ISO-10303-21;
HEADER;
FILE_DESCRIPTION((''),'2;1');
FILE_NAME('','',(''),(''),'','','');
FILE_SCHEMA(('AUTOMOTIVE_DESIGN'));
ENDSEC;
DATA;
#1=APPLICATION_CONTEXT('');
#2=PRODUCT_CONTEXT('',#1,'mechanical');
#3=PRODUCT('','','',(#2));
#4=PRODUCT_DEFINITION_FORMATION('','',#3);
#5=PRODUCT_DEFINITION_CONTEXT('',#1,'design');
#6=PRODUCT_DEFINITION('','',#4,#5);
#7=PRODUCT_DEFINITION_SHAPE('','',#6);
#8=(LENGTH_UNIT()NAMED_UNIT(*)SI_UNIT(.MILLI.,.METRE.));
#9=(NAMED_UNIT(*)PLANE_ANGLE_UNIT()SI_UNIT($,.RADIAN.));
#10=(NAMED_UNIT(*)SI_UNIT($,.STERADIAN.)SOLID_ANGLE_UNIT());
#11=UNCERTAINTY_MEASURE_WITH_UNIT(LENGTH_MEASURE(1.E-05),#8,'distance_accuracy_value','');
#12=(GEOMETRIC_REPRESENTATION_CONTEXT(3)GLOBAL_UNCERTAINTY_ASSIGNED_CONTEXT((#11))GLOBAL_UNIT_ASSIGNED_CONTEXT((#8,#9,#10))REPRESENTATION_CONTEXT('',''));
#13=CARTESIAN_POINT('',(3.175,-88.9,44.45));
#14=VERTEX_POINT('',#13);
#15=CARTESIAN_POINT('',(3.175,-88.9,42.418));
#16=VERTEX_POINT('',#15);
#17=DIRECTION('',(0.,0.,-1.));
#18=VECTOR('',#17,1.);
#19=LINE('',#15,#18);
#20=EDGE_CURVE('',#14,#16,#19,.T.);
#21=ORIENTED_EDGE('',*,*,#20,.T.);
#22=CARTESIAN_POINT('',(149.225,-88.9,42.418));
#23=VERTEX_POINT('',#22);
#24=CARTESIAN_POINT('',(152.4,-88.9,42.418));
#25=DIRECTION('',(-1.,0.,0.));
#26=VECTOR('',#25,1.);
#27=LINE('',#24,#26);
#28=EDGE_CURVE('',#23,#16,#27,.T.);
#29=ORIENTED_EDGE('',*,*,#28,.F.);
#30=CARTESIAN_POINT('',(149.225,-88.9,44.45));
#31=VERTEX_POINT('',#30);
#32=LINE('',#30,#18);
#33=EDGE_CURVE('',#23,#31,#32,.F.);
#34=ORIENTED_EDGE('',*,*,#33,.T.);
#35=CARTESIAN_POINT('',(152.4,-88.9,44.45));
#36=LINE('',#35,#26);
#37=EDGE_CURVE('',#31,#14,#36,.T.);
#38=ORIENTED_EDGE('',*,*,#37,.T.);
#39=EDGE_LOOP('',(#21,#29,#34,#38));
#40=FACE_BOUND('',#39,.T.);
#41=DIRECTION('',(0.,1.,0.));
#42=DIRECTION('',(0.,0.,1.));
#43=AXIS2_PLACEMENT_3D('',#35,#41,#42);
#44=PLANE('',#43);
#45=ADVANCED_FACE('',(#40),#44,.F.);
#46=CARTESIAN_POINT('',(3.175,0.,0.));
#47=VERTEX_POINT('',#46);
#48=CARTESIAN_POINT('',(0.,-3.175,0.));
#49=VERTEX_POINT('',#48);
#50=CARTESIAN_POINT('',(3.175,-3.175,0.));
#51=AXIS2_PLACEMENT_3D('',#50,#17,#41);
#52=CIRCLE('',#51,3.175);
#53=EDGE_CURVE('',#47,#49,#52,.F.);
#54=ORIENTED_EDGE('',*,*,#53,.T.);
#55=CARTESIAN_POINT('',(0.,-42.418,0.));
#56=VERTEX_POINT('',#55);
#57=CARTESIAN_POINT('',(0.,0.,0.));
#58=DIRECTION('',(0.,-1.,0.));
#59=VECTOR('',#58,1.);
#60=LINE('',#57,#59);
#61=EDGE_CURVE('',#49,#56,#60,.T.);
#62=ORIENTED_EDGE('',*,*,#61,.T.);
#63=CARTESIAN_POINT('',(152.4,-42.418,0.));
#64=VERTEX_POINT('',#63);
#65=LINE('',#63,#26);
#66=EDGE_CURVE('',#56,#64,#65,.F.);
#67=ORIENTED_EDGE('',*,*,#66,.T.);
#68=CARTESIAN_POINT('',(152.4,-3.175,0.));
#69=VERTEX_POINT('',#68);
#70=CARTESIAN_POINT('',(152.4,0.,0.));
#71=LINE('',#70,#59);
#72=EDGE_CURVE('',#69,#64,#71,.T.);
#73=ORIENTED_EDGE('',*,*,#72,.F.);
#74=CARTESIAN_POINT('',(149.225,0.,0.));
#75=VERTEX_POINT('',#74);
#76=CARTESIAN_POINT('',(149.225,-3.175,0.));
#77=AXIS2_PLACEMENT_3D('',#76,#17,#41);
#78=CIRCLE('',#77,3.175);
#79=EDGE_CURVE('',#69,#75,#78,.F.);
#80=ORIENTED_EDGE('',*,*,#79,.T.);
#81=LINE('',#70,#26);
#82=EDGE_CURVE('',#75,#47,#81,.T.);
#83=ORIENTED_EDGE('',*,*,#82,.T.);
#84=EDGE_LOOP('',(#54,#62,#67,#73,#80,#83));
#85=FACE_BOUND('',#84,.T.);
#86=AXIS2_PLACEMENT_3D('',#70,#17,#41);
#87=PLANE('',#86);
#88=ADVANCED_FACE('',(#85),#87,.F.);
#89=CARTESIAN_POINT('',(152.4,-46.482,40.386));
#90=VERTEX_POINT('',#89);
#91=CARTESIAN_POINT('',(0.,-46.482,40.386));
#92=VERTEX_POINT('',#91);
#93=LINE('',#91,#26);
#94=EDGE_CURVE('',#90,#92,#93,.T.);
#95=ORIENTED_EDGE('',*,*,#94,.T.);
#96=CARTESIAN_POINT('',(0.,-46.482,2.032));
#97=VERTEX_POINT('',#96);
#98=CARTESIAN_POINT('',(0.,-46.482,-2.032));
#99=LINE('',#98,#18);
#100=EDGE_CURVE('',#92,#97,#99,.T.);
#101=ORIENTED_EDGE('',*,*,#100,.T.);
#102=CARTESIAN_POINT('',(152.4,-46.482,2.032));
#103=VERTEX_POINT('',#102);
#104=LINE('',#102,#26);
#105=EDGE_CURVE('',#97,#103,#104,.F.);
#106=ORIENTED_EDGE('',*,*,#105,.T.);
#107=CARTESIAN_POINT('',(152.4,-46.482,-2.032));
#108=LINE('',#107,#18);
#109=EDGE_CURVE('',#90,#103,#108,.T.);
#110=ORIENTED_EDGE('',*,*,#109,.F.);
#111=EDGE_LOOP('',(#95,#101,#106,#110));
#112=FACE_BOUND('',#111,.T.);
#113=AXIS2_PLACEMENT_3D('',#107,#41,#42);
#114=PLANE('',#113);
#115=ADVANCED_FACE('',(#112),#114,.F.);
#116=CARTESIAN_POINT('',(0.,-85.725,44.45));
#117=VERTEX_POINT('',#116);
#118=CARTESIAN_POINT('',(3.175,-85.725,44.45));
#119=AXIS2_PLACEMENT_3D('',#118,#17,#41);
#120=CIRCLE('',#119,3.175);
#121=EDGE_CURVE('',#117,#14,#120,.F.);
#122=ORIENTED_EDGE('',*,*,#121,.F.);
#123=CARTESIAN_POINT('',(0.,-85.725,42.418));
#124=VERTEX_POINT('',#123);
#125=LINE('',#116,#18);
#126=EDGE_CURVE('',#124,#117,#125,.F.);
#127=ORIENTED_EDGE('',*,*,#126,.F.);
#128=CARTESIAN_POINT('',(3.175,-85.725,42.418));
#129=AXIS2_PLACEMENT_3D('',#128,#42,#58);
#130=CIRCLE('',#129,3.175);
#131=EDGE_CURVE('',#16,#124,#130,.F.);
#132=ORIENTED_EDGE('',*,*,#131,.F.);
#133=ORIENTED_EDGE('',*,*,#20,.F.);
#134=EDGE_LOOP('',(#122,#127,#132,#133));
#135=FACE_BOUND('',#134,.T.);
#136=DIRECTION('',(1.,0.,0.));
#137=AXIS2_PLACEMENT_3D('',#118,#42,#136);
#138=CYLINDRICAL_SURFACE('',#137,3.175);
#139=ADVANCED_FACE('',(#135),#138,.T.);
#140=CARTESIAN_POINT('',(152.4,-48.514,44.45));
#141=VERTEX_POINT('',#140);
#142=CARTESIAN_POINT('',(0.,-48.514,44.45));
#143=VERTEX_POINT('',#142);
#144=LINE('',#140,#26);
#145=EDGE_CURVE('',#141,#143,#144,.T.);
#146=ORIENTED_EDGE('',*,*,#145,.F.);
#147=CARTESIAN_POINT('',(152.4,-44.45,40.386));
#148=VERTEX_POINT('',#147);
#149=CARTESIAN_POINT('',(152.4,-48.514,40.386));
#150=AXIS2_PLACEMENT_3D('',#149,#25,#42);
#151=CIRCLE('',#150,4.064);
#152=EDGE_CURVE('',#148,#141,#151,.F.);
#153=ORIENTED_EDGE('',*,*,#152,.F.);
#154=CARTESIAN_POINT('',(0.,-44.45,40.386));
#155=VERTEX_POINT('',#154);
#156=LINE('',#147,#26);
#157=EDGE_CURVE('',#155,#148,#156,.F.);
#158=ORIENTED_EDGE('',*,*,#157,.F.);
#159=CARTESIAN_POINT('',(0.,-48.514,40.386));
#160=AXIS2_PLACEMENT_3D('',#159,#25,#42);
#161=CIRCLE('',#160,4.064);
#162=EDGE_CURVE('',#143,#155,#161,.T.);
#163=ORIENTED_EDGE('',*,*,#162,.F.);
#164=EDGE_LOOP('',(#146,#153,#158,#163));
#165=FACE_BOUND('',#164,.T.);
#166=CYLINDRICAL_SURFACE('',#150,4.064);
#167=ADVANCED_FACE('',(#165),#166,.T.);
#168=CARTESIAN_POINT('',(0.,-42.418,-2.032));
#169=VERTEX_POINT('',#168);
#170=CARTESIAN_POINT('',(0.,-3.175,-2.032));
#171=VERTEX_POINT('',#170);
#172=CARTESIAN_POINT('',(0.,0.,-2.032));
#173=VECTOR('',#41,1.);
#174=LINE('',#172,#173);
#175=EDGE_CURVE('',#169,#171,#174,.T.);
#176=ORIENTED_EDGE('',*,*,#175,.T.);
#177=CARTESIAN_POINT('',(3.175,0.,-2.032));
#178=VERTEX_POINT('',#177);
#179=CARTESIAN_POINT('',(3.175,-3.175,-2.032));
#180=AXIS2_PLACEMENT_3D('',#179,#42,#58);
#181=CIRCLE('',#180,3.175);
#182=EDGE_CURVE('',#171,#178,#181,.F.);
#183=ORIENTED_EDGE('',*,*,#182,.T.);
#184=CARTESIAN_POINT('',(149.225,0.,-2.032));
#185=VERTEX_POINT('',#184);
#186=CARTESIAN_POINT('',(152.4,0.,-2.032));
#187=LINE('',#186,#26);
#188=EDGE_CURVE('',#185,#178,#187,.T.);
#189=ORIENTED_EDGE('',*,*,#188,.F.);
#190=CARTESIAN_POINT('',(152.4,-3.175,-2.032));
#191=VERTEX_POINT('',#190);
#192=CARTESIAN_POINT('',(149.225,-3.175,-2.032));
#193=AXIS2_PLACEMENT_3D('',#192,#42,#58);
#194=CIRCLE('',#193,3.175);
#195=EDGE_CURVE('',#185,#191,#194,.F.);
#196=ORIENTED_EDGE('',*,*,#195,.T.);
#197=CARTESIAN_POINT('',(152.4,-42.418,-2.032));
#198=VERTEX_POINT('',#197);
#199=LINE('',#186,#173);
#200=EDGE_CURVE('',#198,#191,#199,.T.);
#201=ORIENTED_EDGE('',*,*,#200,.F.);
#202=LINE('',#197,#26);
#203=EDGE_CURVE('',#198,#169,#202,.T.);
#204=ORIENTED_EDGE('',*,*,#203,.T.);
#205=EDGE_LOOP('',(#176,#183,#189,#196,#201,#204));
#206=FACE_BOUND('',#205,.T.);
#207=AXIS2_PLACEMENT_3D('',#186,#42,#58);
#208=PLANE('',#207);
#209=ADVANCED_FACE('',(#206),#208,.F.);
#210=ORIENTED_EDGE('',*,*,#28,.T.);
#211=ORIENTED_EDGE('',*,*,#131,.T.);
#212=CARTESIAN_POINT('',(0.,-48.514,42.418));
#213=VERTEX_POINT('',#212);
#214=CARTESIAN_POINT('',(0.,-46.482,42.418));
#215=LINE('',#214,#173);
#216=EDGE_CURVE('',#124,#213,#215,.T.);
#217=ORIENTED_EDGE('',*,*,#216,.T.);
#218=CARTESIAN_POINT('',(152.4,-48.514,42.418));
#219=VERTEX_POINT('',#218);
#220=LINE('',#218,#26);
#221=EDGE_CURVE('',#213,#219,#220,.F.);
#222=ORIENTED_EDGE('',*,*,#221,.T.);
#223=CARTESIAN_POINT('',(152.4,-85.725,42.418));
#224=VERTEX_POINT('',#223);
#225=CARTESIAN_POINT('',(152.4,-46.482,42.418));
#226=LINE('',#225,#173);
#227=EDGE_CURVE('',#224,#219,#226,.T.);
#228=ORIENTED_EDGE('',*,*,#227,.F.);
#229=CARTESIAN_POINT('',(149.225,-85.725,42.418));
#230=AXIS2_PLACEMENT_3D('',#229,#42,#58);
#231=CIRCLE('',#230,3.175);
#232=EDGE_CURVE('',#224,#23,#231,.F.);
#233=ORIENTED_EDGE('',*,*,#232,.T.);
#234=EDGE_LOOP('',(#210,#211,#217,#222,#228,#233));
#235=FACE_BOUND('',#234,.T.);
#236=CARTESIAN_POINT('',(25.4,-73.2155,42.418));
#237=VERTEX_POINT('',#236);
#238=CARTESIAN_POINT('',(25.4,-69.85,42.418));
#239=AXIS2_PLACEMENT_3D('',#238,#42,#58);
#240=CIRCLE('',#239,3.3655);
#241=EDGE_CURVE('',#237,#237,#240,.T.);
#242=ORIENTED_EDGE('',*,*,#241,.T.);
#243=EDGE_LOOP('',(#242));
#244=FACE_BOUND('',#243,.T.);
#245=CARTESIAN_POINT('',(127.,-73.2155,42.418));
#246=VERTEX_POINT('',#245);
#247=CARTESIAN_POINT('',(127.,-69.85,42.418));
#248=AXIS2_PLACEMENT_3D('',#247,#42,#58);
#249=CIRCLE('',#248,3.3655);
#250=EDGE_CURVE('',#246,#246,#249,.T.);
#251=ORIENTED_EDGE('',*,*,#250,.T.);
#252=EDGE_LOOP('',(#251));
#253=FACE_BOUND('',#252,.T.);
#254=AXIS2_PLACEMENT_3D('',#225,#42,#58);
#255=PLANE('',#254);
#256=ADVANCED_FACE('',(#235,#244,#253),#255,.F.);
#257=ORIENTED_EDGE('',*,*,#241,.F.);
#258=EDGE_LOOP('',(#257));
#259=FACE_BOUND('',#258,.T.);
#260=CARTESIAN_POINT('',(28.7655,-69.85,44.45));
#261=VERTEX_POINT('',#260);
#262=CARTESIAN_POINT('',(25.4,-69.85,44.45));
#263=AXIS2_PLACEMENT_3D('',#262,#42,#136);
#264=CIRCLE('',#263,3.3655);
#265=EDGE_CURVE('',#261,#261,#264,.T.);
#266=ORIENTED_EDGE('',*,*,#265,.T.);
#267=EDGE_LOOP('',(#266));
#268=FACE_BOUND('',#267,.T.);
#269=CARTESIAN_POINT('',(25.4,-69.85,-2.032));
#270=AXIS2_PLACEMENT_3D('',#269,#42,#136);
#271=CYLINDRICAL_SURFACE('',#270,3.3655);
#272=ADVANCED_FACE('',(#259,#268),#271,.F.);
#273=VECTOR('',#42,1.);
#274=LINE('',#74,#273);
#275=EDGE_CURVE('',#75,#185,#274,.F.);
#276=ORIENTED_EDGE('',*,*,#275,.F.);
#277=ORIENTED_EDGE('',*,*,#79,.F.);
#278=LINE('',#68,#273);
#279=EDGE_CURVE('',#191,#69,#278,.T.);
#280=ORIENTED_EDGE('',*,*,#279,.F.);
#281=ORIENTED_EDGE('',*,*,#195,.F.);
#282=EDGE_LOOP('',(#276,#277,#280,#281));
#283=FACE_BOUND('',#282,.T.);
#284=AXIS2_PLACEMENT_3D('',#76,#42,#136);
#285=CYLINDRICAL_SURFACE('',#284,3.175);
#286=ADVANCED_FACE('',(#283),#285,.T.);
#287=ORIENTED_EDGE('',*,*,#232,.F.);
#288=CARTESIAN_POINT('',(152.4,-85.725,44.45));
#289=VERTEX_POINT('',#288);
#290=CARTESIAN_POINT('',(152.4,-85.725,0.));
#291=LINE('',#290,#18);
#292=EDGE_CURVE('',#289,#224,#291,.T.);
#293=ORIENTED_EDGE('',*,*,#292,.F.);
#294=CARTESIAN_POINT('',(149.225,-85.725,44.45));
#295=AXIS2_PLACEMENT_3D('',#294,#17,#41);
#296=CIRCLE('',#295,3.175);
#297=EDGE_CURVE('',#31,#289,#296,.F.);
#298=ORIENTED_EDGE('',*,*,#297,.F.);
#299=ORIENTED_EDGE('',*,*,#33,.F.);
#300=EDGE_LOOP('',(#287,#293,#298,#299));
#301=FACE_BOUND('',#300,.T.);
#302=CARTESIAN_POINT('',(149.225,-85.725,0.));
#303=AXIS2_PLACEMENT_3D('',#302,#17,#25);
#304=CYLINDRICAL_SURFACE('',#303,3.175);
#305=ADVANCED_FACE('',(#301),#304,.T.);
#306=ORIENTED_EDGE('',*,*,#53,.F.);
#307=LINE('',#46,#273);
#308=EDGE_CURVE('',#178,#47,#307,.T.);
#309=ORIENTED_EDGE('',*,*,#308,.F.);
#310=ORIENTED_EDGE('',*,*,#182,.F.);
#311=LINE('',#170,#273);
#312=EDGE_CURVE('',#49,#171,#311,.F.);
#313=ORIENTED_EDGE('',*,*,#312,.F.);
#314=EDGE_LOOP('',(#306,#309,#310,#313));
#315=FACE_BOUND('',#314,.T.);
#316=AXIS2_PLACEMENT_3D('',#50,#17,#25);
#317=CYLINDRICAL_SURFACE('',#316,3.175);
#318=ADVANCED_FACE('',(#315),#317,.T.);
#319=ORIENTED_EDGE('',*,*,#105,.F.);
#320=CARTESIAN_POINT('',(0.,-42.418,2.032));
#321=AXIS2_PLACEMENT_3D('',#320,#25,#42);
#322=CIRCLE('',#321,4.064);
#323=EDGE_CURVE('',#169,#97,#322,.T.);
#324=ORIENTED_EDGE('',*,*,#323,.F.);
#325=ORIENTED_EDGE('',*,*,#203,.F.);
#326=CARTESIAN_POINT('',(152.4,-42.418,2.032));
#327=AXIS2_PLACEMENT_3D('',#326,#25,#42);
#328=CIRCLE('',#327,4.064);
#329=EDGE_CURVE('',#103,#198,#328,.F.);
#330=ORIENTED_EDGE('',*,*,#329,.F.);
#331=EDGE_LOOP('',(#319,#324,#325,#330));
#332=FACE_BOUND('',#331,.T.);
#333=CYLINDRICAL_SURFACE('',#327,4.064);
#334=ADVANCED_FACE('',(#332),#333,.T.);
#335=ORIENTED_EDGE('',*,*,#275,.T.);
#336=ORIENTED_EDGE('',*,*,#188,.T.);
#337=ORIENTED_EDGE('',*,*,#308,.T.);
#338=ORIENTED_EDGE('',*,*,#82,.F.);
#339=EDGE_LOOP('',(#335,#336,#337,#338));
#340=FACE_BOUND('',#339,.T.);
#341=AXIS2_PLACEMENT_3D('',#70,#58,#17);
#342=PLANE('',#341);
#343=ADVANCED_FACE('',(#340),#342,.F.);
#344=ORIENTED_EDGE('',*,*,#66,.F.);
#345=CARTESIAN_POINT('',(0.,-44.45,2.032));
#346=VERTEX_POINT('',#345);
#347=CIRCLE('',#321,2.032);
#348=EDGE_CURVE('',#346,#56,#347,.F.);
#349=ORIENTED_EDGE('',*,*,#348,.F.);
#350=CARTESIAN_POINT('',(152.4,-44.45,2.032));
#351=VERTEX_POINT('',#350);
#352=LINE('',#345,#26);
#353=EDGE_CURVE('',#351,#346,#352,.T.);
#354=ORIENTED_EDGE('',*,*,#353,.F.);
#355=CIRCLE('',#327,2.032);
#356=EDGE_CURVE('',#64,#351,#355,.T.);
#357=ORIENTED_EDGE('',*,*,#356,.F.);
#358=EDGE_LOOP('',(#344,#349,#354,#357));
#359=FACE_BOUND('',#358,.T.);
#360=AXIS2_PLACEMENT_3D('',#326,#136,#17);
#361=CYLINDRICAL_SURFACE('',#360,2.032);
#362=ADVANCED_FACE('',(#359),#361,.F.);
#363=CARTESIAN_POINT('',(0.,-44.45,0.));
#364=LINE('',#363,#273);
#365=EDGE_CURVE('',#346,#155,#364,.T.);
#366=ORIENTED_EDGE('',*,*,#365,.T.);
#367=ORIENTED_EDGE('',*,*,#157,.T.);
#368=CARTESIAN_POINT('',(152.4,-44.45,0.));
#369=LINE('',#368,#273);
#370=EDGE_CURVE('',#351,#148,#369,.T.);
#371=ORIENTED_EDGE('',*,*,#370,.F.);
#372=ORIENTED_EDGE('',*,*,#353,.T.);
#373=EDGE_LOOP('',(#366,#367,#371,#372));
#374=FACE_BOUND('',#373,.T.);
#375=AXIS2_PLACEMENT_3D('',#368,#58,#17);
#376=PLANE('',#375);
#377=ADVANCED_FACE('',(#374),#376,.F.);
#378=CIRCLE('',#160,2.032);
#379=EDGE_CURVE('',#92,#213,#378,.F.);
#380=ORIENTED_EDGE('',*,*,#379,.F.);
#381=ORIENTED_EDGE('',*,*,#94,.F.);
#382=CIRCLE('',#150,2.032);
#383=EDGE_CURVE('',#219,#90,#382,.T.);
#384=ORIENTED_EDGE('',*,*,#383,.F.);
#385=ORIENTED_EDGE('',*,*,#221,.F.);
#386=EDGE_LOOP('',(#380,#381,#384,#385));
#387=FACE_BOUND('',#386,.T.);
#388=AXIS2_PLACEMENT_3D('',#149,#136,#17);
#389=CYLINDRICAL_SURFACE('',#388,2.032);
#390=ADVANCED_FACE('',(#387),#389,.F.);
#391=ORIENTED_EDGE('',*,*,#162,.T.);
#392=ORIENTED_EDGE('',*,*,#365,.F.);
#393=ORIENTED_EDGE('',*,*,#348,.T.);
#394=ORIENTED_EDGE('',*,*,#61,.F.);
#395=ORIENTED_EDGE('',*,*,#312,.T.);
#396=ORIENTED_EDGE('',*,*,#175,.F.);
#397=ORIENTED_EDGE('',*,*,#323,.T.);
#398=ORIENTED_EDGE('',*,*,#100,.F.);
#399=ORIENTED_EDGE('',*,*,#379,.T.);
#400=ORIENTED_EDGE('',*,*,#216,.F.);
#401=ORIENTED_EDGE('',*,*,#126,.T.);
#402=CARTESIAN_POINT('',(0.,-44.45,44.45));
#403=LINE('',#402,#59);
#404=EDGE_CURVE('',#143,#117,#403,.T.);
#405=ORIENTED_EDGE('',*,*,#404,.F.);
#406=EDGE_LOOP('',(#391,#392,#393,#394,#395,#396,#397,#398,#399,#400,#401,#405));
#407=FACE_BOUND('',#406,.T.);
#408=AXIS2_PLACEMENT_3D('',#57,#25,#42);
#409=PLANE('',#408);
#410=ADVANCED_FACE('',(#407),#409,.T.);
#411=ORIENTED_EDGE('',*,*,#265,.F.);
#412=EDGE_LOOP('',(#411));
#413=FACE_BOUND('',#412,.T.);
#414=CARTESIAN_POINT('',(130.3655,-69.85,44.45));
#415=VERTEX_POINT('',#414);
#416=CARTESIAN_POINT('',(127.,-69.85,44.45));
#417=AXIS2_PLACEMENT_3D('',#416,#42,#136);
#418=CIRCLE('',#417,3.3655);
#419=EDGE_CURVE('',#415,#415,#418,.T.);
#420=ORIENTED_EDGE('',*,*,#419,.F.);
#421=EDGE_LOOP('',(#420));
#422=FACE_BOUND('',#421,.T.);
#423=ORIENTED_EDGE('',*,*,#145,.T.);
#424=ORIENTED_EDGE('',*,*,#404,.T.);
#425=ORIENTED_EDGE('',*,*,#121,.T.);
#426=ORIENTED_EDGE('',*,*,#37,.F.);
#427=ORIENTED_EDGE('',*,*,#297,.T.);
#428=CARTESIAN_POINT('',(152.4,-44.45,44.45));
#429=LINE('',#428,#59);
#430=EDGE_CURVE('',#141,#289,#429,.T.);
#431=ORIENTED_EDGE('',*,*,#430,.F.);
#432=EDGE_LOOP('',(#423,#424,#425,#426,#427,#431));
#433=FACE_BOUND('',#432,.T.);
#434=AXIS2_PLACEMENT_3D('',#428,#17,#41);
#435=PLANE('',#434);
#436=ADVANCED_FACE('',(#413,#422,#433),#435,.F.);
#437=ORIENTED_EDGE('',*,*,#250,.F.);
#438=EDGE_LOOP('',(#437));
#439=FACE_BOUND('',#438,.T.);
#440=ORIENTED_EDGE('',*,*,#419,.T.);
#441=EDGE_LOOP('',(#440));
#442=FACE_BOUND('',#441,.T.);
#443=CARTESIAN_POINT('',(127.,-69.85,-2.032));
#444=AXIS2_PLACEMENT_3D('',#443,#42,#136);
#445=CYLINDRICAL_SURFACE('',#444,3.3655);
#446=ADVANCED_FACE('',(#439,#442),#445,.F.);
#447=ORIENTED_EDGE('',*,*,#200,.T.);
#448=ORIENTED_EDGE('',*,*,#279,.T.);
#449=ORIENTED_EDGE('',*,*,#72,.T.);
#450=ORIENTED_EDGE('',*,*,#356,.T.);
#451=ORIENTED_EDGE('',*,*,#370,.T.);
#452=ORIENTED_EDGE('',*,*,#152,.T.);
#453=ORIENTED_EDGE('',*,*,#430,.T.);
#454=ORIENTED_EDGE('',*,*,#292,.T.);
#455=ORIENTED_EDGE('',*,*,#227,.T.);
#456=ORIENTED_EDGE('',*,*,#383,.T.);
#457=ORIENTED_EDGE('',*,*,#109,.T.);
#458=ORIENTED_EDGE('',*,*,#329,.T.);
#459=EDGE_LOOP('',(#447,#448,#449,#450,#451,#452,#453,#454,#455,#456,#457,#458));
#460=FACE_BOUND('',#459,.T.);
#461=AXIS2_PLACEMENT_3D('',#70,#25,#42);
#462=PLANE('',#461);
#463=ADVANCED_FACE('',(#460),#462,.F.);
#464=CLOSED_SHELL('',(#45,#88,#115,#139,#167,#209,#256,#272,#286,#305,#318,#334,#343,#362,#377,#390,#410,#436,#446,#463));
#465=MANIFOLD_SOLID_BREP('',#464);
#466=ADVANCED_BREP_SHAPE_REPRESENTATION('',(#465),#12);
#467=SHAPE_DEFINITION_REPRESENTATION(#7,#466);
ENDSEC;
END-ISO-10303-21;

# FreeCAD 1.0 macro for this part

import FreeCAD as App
import Part
import Sketcher
from FreeCAD import Vector
Q = App.Units.Quantity


def edges_at(feature, points):
    """Names of the edges that pass closest to the given points."""
    edges = feature.Shape.Edges
    near = lambda p: min(range(len(edges)), key=lambda i: edges[i].distToShape(Part.Vertex(*p))[0])
    return sorted({f"Edge{near(p) + 1}" for p in points})


def add_polygon(sketch, points):
    """Adds a closed chain of lines whose ends are joined by coincident constraints."""
    first, n = sketch.GeometryCount, len(points)
    for a, b in zip(points, points[1:] + points[:1]):
        sketch.addGeometry(Part.LineSegment(App.Vector(*a, 0), App.Vector(*b, 0)), False)
    for i in range(n):
        sketch.addConstraint(Sketcher.Constraint("Coincident", first + i, 2, first + (i + 1) % n, 1))

doc = App.newDocument("Part")
params = doc.addObject("Spreadsheet::Sheet", "Params")
for row, (alias, value) in enumerate([
    ("sketch1_width", "1.75 in"),
    ("sketch1_width2", "1.67 in"),
    ("sketch1_height", "0.08 in"),
    ("pad1_length", "6 in"),
    ("fillet_radius", "0.08 in"),
    ("fillet2_radius", "0.16 in"),
    ("fillet3_radius", "0.125 in"),
    ("sketch2_diameter", "0.265 in"),
], start=1):
    params.set(f"A{row}", alias)
    params.set(f"B{row}", "=" + value)
    params.setAlias(f"B{row}", alias)

body = doc.addObject("PartDesign::Body", "Body")

sketch1 = body.newObject("Sketcher::SketchObject", "Sketch")
sketch1.AttachmentSupport = (doc.getObject("YZ_Plane"), [""])
sketch1.MapMode = "FlatFace"
add_polygon(sketch1, [(0, 0), (-44.45, 0), (-44.45, 44.45), (-88.9, 44.45), (-88.9, 42.418), (-46.482, 42.418), (-46.482, -2.032), (0, -2.032)])
sketch1.addConstraint([
    Sketcher.Constraint("Horizontal", 0),
    Sketcher.Constraint("Vertical", 1),
    Sketcher.Constraint("Horizontal", 2),
    Sketcher.Constraint("Vertical", 3),
    Sketcher.Constraint("Horizontal", 4),
    Sketcher.Constraint("Vertical", 5),
    Sketcher.Constraint("Horizontal", 6),
    Sketcher.Constraint("Vertical", 7),
    Sketcher.Constraint("Coincident", 7, 2, -1, 1),
    Sketcher.Constraint("Equal", 0, 2),
    Sketcher.Constraint("Equal", 2, 1),
    Sketcher.Constraint("Equal", 1, 5),
    Sketcher.Constraint("DistanceX", 0, 2, 0, 1, Q("1.75 in")),
    Sketcher.Constraint("DistanceX", 4, 1, 4, 2, Q("1.67 in")),
    Sketcher.Constraint("DistanceY", 3, 2, 3, 1, Q("0.08 in")),
])
sketch1.setExpression("Constraints[20]", "Params.sketch1_width")
sketch1.setExpression("Constraints[21]", "Params.sketch1_width2")
sketch1.setExpression("Constraints[22]", "Params.sketch1_height")
pad1 = body.newObject("PartDesign::Pad", "Pad")
pad1.Profile = sketch1
pad1.setExpression("Length", "Params.pad1_length")
doc.recompute()

fillet = body.newObject("PartDesign::Fillet", "Fillet")
fillet.Base = (pad1, edges_at(pad1, [(76.2, -46.482, 42.418), (76.2, -44.45, 0)]))
fillet.setExpression("Radius", "Params.fillet_radius")
doc.recompute()

fillet2 = body.newObject("PartDesign::Fillet", "Fillet001")
fillet2.Base = (fillet, edges_at(fillet, [(76.2, -46.482, -2.032), (76.2, -44.45, 44.45)]))
fillet2.setExpression("Radius", "Params.fillet2_radius")
doc.recompute()

fillet3 = body.newObject("PartDesign::Fillet", "Fillet002")
fillet3.Base = (fillet2, edges_at(fillet2, [
    (0, 0, -1.016),
    (152.4, -88.9, 43.434),
    (152.4, 0, -1.016),
    (0, -88.9, 43.434),
]))
fillet3.setExpression("Radius", "Params.fillet3_radius")

sketch2 = body.newObject("Sketcher::SketchObject", "Sketch001")
sketch2.AttachmentSupport = (doc.getObject("XY_Plane"), [""])
sketch2.MapMode = "FlatFace"
sketch2.AttachmentOffset = App.Placement(Vector(0, 0, 1.75 * 25.4), App.Rotation())
sketch2.addGeometry([
    Part.Circle(Vector(25.4, -69.85, 0), Vector(0, 0, 1), 3.3655),
    Part.Circle(Vector(127, -69.85, 0), Vector(0, 0, 1), 3.3655),
], False)
sketch2.addConstraint([
    Sketcher.Constraint("Equal", 0, 1),
    Sketcher.Constraint("Horizontal", 0, 3, 1, 3),
    Sketcher.Constraint("Diameter", 0, Q("0.265 in")),
    Sketcher.Constraint("DistanceX", -1, 1, 0, 3, Q("1 in")),
    Sketcher.Constraint("DistanceX", -1, 1, 1, 3, Q("5 in")),
    Sketcher.Constraint("DistanceY", 0, 3, -1, 1, Q("2.75 in")),
])
sketch2.setExpression("Constraints[2]", "Params.sketch2_diameter")
pocket1 = body.newObject("PartDesign::Pocket", "Pocket")
pocket1.Profile = sketch2
pocket1.Type = "ThroughAll"

doc.recompute()
